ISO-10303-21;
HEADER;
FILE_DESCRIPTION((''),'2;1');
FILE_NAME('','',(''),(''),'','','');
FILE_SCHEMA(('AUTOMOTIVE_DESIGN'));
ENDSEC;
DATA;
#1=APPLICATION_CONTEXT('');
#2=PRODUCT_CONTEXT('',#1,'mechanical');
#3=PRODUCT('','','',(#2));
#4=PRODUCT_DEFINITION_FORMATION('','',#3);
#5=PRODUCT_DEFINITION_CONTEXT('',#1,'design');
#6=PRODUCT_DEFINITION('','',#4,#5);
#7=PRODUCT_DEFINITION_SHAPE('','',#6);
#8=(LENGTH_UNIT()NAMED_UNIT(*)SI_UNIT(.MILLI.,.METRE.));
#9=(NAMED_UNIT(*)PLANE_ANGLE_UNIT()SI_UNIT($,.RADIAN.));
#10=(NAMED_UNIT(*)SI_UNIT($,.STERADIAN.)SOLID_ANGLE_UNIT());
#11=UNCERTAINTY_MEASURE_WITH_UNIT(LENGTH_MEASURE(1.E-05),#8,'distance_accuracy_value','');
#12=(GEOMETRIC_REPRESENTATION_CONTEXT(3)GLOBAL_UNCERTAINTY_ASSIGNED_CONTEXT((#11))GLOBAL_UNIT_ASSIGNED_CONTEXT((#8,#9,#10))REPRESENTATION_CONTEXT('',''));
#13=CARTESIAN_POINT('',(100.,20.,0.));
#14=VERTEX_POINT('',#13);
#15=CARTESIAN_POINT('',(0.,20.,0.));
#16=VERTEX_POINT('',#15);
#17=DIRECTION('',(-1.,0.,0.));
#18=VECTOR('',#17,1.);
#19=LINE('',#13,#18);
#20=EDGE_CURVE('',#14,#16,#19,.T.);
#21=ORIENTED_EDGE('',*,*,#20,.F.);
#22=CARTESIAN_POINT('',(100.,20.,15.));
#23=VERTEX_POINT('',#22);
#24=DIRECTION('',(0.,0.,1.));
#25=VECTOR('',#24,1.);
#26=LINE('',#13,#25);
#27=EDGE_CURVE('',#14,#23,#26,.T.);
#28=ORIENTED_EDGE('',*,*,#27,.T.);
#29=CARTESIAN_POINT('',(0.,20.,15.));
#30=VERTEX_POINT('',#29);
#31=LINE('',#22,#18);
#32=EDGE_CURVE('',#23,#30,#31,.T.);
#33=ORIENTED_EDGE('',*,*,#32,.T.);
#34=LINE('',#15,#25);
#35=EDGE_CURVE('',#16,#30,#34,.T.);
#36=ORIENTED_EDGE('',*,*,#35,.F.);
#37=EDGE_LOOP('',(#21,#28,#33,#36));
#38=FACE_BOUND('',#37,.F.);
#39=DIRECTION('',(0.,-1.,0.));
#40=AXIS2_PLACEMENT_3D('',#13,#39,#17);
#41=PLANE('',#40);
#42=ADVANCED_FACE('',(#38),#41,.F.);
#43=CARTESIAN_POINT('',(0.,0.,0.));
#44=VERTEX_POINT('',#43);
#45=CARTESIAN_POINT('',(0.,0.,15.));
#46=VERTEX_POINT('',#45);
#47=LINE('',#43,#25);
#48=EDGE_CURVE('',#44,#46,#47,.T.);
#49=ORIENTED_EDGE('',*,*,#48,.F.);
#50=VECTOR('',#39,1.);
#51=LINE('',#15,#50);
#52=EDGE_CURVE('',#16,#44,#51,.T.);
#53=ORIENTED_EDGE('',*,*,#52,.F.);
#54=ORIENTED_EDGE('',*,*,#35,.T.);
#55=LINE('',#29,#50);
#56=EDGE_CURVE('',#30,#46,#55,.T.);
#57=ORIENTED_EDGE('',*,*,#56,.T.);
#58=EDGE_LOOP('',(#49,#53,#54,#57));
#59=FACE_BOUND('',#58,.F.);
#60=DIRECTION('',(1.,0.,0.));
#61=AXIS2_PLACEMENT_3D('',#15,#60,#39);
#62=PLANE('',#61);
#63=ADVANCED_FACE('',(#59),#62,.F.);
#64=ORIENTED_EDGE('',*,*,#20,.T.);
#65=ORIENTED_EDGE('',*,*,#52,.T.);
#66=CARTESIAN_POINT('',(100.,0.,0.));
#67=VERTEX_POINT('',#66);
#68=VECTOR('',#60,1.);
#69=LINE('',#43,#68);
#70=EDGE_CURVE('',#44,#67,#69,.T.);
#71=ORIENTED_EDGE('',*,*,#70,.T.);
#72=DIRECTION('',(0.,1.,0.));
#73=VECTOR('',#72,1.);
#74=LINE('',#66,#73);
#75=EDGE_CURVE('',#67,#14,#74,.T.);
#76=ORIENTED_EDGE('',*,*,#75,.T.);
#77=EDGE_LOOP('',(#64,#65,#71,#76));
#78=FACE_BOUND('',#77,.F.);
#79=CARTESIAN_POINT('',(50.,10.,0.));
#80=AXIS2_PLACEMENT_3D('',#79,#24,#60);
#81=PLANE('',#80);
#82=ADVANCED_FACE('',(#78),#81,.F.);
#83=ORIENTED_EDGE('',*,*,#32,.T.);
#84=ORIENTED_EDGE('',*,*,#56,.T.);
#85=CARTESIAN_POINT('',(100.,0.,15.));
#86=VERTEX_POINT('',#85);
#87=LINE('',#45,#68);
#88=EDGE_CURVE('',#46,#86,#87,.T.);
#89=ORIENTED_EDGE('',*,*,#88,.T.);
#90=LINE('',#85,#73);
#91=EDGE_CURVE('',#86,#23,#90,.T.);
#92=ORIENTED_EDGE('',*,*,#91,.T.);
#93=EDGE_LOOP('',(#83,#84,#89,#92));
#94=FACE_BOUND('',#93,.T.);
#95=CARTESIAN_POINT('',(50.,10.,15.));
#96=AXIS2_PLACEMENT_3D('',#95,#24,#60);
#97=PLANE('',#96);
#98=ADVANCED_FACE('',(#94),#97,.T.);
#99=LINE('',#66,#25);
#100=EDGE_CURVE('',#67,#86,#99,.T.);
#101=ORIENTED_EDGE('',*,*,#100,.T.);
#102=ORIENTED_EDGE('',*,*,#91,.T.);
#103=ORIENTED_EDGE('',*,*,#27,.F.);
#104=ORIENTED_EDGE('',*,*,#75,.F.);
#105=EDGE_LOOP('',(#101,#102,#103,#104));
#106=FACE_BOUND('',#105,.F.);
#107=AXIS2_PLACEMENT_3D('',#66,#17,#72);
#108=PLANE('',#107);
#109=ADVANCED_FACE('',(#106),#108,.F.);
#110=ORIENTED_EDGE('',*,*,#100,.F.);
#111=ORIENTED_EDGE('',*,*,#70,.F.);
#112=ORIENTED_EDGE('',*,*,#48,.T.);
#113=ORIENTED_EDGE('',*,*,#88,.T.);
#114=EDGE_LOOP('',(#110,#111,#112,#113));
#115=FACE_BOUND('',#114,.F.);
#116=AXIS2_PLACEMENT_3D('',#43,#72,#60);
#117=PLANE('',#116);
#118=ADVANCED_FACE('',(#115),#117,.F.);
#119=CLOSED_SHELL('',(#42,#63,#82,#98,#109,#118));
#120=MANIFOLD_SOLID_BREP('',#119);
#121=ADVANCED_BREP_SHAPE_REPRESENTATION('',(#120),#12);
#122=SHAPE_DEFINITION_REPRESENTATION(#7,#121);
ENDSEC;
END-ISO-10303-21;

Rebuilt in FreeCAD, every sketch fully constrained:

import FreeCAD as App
import Part
import Sketcher

V = App.Vector

doc = App.newDocument("Part")
body = doc.addObject("PartDesign::Body", "Body")

# Sketch on XY plane
sketch1 = body.newObject("Sketcher::SketchObject", "Sketch")
sketch1.AttachmentSupport = (doc.getObject("XY_Plane"), [""])
sketch1.MapMode = "FlatFace"
sketch1.addGeometry([
    Part.LineSegment(V(0, 20, 0), V(0, 0, 0)),
    Part.LineSegment(V(0, 0, 0), V(100, 0, 0)),
    Part.LineSegment(V(100, 0, 0), V(100, 20, 0)),
    Part.LineSegment(V(100, 20, 0), V(0, 20, 0)),
], False)
sketch1.addConstraint([
    Sketcher.Constraint("Coincident", 0, 2, 1, 1),
    Sketcher.Constraint("Coincident", 1, 2, 2, 1),
    Sketcher.Constraint("Coincident", 2, 2, 3, 1),
    Sketcher.Constraint("Coincident", 3, 2, 0, 1),
    Sketcher.Constraint("Vertical", 0),
    Sketcher.Constraint("Horizontal", 1),
    Sketcher.Constraint("Vertical", 2),
    Sketcher.Constraint("Horizontal", 3),
    Sketcher.Constraint("Coincident", 0, 2, -1, 1),
    Sketcher.Constraint("DistanceX", 1, 1, 1, 2, 100.0),
    Sketcher.Constraint("DistanceY", 0, 2, 0, 1, 20.0),
])
pad1 = body.newObject("PartDesign::Pad", "Pad")
pad1.Profile = sketch1
pad1.Length = 15

doc.recompute()
